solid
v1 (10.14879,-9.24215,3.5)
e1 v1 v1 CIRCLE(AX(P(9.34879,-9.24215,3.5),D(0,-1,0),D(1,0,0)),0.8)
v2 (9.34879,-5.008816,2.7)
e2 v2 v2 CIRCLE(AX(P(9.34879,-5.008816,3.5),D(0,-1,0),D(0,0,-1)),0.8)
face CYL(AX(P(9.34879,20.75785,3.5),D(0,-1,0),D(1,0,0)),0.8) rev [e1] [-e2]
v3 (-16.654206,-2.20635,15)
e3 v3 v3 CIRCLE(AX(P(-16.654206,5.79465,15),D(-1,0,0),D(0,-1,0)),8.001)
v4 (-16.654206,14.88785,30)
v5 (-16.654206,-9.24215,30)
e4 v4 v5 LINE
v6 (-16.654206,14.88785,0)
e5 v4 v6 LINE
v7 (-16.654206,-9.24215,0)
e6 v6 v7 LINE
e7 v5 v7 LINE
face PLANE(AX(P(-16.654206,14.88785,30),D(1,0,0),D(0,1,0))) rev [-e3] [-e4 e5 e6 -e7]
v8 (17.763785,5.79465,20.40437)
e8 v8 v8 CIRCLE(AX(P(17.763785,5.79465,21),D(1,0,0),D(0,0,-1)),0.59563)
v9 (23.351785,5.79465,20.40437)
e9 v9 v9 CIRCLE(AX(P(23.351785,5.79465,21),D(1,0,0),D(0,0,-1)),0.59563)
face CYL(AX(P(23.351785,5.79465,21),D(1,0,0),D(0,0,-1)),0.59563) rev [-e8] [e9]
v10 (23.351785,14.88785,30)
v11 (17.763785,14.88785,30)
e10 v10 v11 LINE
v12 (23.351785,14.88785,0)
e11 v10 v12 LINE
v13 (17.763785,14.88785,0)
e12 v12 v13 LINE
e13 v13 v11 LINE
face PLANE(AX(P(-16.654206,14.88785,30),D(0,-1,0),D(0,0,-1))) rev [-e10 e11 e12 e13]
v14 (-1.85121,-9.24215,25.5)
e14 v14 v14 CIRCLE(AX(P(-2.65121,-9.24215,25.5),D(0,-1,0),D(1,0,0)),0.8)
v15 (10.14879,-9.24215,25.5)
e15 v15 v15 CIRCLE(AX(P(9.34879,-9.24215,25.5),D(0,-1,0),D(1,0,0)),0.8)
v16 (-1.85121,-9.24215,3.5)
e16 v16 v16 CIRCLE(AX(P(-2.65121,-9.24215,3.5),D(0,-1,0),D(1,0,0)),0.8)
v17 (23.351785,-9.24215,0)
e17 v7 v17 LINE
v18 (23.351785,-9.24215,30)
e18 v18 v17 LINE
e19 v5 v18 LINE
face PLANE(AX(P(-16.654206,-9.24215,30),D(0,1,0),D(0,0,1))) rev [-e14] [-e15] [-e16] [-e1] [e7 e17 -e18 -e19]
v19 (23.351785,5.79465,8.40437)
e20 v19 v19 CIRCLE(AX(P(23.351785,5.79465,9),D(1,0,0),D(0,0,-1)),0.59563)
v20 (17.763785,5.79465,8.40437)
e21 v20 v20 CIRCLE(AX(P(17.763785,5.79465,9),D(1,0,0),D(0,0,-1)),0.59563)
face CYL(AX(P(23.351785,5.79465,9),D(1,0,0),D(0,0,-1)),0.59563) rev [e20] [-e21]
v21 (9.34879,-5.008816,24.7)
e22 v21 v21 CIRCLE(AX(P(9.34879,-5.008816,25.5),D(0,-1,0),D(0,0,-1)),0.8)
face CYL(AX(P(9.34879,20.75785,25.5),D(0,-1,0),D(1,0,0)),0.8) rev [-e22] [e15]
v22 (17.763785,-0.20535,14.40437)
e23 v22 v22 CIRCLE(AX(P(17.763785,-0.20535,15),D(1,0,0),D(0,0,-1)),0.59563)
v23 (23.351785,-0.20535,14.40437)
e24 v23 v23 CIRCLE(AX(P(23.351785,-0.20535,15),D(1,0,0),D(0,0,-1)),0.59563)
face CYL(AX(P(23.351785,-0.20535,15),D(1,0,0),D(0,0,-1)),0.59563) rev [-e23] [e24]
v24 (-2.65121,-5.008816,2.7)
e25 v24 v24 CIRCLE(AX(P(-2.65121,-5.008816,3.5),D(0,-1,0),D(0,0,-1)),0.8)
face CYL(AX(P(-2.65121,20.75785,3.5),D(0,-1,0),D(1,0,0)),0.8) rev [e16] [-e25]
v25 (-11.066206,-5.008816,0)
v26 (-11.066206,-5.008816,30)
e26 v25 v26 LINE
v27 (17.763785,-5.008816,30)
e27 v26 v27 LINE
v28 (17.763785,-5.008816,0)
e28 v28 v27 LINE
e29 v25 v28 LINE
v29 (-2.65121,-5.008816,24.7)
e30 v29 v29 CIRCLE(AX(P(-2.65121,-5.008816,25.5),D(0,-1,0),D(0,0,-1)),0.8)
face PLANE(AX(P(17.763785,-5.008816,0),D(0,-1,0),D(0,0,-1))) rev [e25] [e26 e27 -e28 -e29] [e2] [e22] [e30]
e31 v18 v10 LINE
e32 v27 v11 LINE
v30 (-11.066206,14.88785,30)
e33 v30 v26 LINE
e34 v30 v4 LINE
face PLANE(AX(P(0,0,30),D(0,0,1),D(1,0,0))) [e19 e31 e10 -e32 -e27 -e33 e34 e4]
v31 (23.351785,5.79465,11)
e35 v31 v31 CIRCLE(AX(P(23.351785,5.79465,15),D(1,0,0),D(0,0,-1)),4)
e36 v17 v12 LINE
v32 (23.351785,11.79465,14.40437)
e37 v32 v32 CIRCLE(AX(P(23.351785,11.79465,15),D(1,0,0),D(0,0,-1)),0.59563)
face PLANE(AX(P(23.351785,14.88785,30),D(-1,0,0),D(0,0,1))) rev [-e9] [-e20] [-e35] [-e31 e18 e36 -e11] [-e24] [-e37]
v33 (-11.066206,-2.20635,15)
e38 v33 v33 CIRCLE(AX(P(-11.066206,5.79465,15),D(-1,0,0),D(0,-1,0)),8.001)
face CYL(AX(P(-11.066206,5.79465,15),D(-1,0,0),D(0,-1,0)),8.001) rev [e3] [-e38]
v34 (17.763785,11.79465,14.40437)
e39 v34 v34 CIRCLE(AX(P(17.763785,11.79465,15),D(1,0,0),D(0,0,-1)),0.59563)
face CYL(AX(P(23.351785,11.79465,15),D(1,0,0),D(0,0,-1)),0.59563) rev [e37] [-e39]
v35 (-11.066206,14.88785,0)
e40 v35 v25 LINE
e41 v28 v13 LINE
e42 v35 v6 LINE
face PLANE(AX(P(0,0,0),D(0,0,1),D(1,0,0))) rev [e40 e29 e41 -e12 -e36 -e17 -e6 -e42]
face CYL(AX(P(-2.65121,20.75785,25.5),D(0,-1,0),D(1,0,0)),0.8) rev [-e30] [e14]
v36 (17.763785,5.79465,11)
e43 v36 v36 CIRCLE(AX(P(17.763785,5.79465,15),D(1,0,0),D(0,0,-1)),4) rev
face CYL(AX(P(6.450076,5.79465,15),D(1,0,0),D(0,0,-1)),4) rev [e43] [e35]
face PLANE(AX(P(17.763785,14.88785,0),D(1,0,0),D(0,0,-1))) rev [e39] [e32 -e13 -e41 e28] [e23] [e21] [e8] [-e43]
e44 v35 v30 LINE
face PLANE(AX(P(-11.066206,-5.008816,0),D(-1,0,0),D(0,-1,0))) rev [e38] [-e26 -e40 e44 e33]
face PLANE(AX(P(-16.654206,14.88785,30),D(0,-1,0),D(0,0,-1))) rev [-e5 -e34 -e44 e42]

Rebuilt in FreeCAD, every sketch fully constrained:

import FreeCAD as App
import Part
import Sketcher
from FreeCAD import Vector
Q = App.Units.Quantity

doc = App.newDocument("Part")
body = doc.addObject("PartDesign::Body", "Body")

sketch1 = body.newObject("Sketcher::SketchObject", "Sketch")
sketch1.AttachmentSupport = (doc.getObject("XY_Plane"), [""])
sketch1.MapMode = "FlatFace"
sketch1.addGeometry([
    Part.LineSegment(Vector(-16.654206, 14.88785, 0), Vector(-16.654206, -9.24215, 0)),
    Part.LineSegment(Vector(-16.654206, -9.24215, 0), Vector(23.351785, -9.24215, 0)),
    Part.LineSegment(Vector(23.351785, -9.24215, 0), Vector(23.351785, 14.88785, 0)),
    Part.LineSegment(Vector(23.351785, 14.88785, 0), Vector(-16.654206, 14.88785, 0)),
], False)
sketch1.addConstraint([
    Sketcher.Constraint("Coincident", 0, 2, 1, 1),
    Sketcher.Constraint("Coincident", 1, 2, 2, 1),
    Sketcher.Constraint("Coincident", 2, 2, 3, 1),
    Sketcher.Constraint("Coincident", 3, 2, 0, 1),
    Sketcher.Constraint("Vertical", 0),
    Sketcher.Constraint("Horizontal", 1),
    Sketcher.Constraint("Vertical", 2),
    Sketcher.Constraint("Horizontal", 3),
    Sketcher.Constraint("DistanceY", 0, 2, 0, 1, Q("24.13 mm")),
    Sketcher.Constraint("DistanceX", 1, 1, 1, 2, Q("40.005991 mm")),
    Sketcher.Constraint("DistanceY", 0, 2, -1, 1, Q("9.24215 mm")),
    Sketcher.Constraint("DistanceX", 0, 2, -1, 1, Q("16.654206 mm")),
])
pad1 = body.newObject("PartDesign::Pad", "Pad")
pad1.Profile = sketch1
pad1.Length = 30

sketch2 = body.newObject("Sketcher::SketchObject", "Sketch001")
sketch2.AttachmentSupport = (doc.getObject("XY_Plane"), [""])
sketch2.MapMode = "FlatFace"
sketch2.AttachmentOffset = App.Placement(Vector(0, 0, 30), App.Rotation())
sketch2.addGeometry([
    Part.LineSegment(Vector(-11.066206, 14.88785, 0), Vector(-11.066206, -5.008816, 0)),
    Part.LineSegment(Vector(-11.066206, -5.008816, 0), Vector(17.763785, -5.008816, 0)),
    Part.LineSegment(Vector(17.763785, -5.008816, 0), Vector(17.763785, 14.88785, 0)),
    Part.LineSegment(Vector(17.763785, 14.88785, 0), Vector(-11.066206, 14.88785, 0)),
], False)
sketch2.addConstraint([
    Sketcher.Constraint("Coincident", 0, 2, 1, 1),
    Sketcher.Constraint("Coincident", 1, 2, 2, 1),
    Sketcher.Constraint("Coincident", 2, 2, 3, 1),
    Sketcher.Constraint("Coincident", 3, 2, 0, 1),
    Sketcher.Constraint("Vertical", 0),
    Sketcher.Constraint("Horizontal", 1),
    Sketcher.Constraint("Vertical", 2),
    Sketcher.Constraint("Horizontal", 3),
    Sketcher.Constraint("DistanceX", 1, 1, 1, 2, Q("28.829991 mm")),
    Sketcher.Constraint("DistanceY", 0, 2, 0, 1, Q("19.896667 mm")),
    Sketcher.Constraint("DistanceY", -1, 1, 2, 2, Q("14.88785 mm")),
    Sketcher.Constraint("DistanceX", 0, 2, -1, 1, Q("11.066206 mm")),
])
pocket1 = body.newObject("PartDesign::Pocket", "Pocket")
pocket1.Profile = sketch2
pocket1.Length = 30

sketch3 = body.newObject("Sketcher::SketchObject", "Sketch002")
sketch3.AttachmentSupport = (doc.getObject("XZ_Plane"), [""])
sketch3.MapMode = "FlatFace"
sketch3.AttachmentOffset = App.Placement(Vector(0, 0, 9.24215), App.Rotation())
sketch3.addGeometry([
    Part.Circle(Vector(-2.65121, 25.5, 0), Vector(0, 0, 1), 0.8),
    Part.Circle(Vector(9.34879, 25.5, 0), Vector(0, 0, 1), 0.8),
    Part.Circle(Vector(9.34879, 3.5, 0), Vector(0, 0, 1), 0.8),
    Part.Circle(Vector(-2.65121, 3.5, 0), Vector(0, 0, 1), 0.8),
], False)
sketch3.addConstraint([
    Sketcher.Constraint("Equal", 0, 1),
    Sketcher.Constraint("Equal", 1, 2),
    Sketcher.Constraint("Equal", 2, 3),
    Sketcher.Constraint("Horizontal", 0, 3, 1, 3),
    Sketcher.Constraint("Horizontal", 2, 3, 3, 3),
    Sketcher.Constraint("Vertical", 1, 3, 2, 3),
    Sketcher.Constraint("Vertical", 0, 3, 3, 3),
    Sketcher.Constraint("Diameter", 0, Q("1.6 mm")),
    Sketcher.Constraint("DistanceX", 0, 3, 1, 3, Q("12 mm")),
    Sketcher.Constraint("DistanceY", 2, 3, 1, 3, Q("22 mm")),
    Sketcher.Constraint("DistanceY", -1, 1, 0, 3, Q("25.5 mm")),
    Sketcher.Constraint("DistanceX", 0, 3, -1, 1, Q("2.65121 mm")),
])
pocket2 = body.newObject("PartDesign::Pocket", "Pocket001")
pocket2.Profile = sketch3
pocket2.Length = 30

sketch4 = body.newObject("Sketcher::SketchObject", "Sketch003")
sketch4.AttachmentSupport = (doc.getObject("YZ_Plane"), [""])
sketch4.MapMode = "FlatFace"
sketch4.AttachmentOffset = App.Placement(Vector(0, 0, -16.654206), App.Rotation())
sketch4.addGeometry(Part.Circle(Vector(5.79465, 15, 0), Vector(0, 0, 1), 8.001), False)
sketch4.addConstraint([
    Sketcher.Constraint("Diameter", 0, Q("16.002 mm")),
    Sketcher.Constraint("DistanceY", -1, 1, 0, 3, Q("15 mm")),
    Sketcher.Constraint("DistanceX", -1, 1, 0, 3, Q("5.79465 mm")),
])
pocket3 = body.newObject("PartDesign::Pocket", "Pocket002")
pocket3.Profile = sketch4
pocket3.Length = 5.588
pocket3.Reversed = True

sketch5 = body.newObject("Sketcher::SketchObject", "Sketch004")
sketch5.AttachmentSupport = (doc.getObject("YZ_Plane"), [""])
sketch5.MapMode = "FlatFace"
sketch5.AttachmentOffset = App.Placement(Vector(0, 0, 23.351785), App.Rotation())
sketch5.addGeometry(Part.Circle(Vector(5.79465, 15, 0), Vector(0, 0, 1), 4), False)
sketch5.addConstraint([
    Sketcher.Constraint("Diameter", 0, Q("8 mm")),
    Sketcher.Constraint("DistanceY", -1, 1, 0, 3, Q("15 mm")),
    Sketcher.Constraint("DistanceX", -1, 1, 0, 3, Q("5.79465 mm")),
])
pocket4 = body.newObject("PartDesign::Pocket", "Pocket003")
pocket4.Profile = sketch5
pocket4.Length = 5.588

sketch6 = body.newObject("Sketcher::SketchObject", "Sketch005")
sketch6.AttachmentSupport = (doc.getObject("YZ_Plane"), [""])
sketch6.MapMode = "FlatFace"
sketch6.AttachmentOffset = App.Placement(Vector(0, 0, 23.351785), App.Rotation())
sketch6.addGeometry([
    Part.Circle(Vector(11.79465, 15, 0), Vector(0, 0, 1), 0.59563),
    Part.Circle(Vector(5.79465, 9, 0), Vector(0, 0, 1), 0.59563),
    Part.Circle(Vector(-0.20535, 15, 0), Vector(0, 0, 1), 0.59563),
    Part.Circle(Vector(5.79465, 21, 0), Vector(0, 0, 1), 0.59563),
], False)
sketch6.addConstraint([
    Sketcher.Constraint("Equal", 0, 1),
    Sketcher.Constraint("Equal", 1, 2),
    Sketcher.Constraint("Equal", 2, 3),
    Sketcher.Constraint("Horizontal", 0, 3, 2, 3),
    Sketcher.Constraint("Vertical", 1, 3, 3, 3),
    Sketcher.Constraint("DistanceY", -1, 1, 0, 3, Q("15 mm")),
    Sketcher.Constraint("DistanceY", -1, 1, 1, 3, Q("9 mm")),
    Sketcher.Constraint("DistanceY", -1, 1, 3, 3, Q("21 mm")),
    Sketcher.Constraint("DistanceX", 1, 3, 0, 3, Q("6 mm")),
    Sketcher.Constraint("DistanceX", 2, 3, 1, 3, Q("6 mm")),
    Sketcher.Constraint("Diameter", 0, Q("1.19126 mm")),
    Sketcher.Constraint("DistanceX", -1, 1, 0, 3, Q("11.79465 mm")),
])
doc.recompute()
hole = body.newObject("PartDesign::Hole", "Hole")
hole.Profile = sketch6
hole.ThreadType = "None"
hole.Diameter = 1.19126
hole.DepthType = "Dimension"
hole.Depth = 5.588
hole.DrillPoint = "Flat"

doc.recompute()
